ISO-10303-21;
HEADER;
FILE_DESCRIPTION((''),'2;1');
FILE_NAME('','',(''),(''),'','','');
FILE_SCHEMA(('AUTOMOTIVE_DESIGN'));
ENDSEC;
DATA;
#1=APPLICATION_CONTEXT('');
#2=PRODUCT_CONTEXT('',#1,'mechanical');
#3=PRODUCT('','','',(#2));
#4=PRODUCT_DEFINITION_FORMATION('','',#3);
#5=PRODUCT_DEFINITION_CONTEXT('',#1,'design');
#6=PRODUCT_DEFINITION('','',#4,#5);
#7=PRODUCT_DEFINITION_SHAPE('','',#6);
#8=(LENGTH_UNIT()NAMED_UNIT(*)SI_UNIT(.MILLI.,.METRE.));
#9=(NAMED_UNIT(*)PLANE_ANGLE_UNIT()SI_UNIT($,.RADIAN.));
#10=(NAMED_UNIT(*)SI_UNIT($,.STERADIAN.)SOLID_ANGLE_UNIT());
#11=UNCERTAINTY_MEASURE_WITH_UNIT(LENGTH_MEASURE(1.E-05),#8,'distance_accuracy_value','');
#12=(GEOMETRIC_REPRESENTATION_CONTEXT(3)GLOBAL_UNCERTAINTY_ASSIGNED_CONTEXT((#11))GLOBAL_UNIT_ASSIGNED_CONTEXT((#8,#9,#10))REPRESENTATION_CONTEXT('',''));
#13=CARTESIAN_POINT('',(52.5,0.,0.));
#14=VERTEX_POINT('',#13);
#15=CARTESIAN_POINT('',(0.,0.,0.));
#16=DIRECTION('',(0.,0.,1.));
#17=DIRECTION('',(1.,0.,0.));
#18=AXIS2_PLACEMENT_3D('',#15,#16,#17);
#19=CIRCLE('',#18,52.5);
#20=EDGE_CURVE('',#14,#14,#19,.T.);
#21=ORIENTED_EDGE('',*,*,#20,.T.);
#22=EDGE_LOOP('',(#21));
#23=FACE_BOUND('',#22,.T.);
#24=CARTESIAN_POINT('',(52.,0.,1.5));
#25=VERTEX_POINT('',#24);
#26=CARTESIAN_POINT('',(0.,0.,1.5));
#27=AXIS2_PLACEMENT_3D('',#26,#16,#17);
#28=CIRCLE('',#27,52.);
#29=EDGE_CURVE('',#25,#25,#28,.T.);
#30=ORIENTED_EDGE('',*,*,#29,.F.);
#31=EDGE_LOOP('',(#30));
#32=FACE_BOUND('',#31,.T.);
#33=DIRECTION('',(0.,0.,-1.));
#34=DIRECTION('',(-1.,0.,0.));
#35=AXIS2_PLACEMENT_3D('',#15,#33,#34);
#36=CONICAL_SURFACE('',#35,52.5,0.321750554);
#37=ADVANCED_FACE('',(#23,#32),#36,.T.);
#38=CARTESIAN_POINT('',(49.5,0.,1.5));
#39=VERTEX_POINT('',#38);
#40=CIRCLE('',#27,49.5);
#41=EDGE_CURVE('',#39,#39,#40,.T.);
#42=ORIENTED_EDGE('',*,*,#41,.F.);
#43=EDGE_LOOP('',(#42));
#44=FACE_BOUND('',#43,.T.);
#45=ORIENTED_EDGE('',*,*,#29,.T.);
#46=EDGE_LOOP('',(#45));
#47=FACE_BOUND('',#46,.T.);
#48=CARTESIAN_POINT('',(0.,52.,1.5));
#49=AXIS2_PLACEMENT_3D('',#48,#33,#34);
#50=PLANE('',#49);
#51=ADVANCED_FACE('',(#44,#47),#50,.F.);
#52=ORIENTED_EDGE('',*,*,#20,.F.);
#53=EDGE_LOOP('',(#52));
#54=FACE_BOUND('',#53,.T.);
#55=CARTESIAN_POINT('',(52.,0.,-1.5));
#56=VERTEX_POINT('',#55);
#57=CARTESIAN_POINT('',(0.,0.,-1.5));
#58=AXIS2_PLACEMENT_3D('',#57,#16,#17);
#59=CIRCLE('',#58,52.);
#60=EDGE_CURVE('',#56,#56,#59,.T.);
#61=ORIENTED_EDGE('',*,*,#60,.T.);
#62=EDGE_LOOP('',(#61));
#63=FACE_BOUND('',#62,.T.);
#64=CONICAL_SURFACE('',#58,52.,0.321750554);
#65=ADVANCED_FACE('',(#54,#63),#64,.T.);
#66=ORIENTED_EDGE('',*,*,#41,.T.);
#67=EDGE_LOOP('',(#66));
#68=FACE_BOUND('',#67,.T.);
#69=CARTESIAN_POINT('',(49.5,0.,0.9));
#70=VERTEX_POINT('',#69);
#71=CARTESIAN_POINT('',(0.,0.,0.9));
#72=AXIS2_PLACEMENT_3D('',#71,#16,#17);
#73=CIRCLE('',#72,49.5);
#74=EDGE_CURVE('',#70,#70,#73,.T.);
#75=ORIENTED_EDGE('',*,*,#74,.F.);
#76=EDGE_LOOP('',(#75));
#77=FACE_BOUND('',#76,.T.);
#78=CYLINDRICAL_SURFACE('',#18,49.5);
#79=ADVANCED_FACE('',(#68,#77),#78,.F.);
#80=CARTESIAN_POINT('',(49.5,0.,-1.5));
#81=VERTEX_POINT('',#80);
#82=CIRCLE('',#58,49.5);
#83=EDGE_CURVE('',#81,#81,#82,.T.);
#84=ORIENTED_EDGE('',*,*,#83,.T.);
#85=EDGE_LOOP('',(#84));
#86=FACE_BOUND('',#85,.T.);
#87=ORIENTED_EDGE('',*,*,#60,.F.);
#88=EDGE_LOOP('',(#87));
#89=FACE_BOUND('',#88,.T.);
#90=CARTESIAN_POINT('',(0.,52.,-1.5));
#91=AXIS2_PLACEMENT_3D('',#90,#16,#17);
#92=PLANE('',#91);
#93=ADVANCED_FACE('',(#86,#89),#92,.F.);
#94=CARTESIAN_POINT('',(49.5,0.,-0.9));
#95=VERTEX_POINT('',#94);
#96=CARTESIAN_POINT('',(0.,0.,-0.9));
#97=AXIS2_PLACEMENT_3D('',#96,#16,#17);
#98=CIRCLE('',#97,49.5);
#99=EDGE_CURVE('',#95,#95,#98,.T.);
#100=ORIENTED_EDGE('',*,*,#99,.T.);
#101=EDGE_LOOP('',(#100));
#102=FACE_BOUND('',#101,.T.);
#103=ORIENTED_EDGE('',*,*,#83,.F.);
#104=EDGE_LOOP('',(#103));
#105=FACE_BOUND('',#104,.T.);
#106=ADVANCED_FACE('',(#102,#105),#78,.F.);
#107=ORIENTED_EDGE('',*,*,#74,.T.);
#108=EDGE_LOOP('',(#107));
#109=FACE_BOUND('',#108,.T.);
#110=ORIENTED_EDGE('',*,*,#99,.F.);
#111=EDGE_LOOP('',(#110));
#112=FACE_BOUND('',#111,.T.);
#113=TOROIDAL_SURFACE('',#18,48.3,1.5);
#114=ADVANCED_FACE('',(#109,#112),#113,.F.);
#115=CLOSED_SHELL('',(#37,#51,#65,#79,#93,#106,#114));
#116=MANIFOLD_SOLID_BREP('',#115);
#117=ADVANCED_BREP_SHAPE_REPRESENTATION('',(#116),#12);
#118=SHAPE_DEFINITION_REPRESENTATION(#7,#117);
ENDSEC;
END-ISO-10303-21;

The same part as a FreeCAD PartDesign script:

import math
import FreeCAD as App
import Part
import Sketcher

doc = App.newDocument("Part")
body = doc.addObject("PartDesign::Body", "Body")

sketch1 = body.newObject("Sketcher::SketchObject", "Sketch")
sketch1.AttachmentSupport = (doc.getObject("YZ_Plane"), [""])
sketch1.MapMode = "FlatFace"
sketch1.addGeometry([
    Part.LineSegment(App.Vector(52, -1.5, 0), App.Vector(52.5, 0, 0)),
    Part.LineSegment(App.Vector(52.5, 0, 0), App.Vector(52, 1.5, 0)),
    Part.LineSegment(App.Vector(52, 1.5, 0), App.Vector(49.5, 1.5, 0)),
    Part.LineSegment(App.Vector(49.5, 1.5, 0), App.Vector(49.5, 0.9, 0)),
    Part.ArcOfCircle(Part.Circle(App.Vector(48.3, 0, 0), App.Vector(0, 0, 1), 1.5), math.radians(-37), math.radians(37)),
    Part.LineSegment(App.Vector(49.5, -0.9, 0), App.Vector(49.5, -1.5, 0)),
    Part.LineSegment(App.Vector(49.5, -1.5, 0), App.Vector(52, -1.5, 0)),
], False)
sketch1.addConstraint([
    Sketcher.Constraint("Coincident", 0, 2, 1, 1),
    Sketcher.Constraint("Coincident", 1, 2, 2, 1),
    Sketcher.Constraint("Coincident", 2, 2, 3, 1),
    Sketcher.Constraint("Coincident", 3, 2, 4, 2),
    Sketcher.Constraint("Coincident", 4, 1, 5, 1),
    Sketcher.Constraint("Coincident", 5, 2, 6, 1),
    Sketcher.Constraint("Coincident", 6, 2, 0, 1),
    Sketcher.Constraint("Horizontal", 2),
    Sketcher.Constraint("Vertical", 3),
    Sketcher.Constraint("Vertical", 5),
    Sketcher.Constraint("Horizontal", 6),
    Sketcher.Constraint("Symmetric", 3, 2, 4, 1, -1),
    Sketcher.Constraint("Symmetric", 1, 2, 6, 2, -1),
    Sketcher.Constraint("PointOnObject", 0, 2, -1),
    Sketcher.Constraint("Radius", 4, 1.5),
    Sketcher.Constraint("DistanceX", 2, 2, 2, 1, 2.5),
    Sketcher.Constraint("DistanceY", 3, 2, 3, 1, 0.6),
    Sketcher.Constraint("DistanceX", -1, 1, 1, 2, 52.0),
    Sketcher.Constraint("DistanceX", 2, 2, 0, 2, 3.0),
    Sketcher.Constraint("DistanceY", 5, 2, 2, 2, 3.0),
])
revolution = body.newObject("PartDesign::Revolution", "Revolution")
revolution.Profile = sketch1
revolution.ReferenceAxis = (sketch1, ["V_Axis"])
revolution.Angle = 360

doc.recompute()
